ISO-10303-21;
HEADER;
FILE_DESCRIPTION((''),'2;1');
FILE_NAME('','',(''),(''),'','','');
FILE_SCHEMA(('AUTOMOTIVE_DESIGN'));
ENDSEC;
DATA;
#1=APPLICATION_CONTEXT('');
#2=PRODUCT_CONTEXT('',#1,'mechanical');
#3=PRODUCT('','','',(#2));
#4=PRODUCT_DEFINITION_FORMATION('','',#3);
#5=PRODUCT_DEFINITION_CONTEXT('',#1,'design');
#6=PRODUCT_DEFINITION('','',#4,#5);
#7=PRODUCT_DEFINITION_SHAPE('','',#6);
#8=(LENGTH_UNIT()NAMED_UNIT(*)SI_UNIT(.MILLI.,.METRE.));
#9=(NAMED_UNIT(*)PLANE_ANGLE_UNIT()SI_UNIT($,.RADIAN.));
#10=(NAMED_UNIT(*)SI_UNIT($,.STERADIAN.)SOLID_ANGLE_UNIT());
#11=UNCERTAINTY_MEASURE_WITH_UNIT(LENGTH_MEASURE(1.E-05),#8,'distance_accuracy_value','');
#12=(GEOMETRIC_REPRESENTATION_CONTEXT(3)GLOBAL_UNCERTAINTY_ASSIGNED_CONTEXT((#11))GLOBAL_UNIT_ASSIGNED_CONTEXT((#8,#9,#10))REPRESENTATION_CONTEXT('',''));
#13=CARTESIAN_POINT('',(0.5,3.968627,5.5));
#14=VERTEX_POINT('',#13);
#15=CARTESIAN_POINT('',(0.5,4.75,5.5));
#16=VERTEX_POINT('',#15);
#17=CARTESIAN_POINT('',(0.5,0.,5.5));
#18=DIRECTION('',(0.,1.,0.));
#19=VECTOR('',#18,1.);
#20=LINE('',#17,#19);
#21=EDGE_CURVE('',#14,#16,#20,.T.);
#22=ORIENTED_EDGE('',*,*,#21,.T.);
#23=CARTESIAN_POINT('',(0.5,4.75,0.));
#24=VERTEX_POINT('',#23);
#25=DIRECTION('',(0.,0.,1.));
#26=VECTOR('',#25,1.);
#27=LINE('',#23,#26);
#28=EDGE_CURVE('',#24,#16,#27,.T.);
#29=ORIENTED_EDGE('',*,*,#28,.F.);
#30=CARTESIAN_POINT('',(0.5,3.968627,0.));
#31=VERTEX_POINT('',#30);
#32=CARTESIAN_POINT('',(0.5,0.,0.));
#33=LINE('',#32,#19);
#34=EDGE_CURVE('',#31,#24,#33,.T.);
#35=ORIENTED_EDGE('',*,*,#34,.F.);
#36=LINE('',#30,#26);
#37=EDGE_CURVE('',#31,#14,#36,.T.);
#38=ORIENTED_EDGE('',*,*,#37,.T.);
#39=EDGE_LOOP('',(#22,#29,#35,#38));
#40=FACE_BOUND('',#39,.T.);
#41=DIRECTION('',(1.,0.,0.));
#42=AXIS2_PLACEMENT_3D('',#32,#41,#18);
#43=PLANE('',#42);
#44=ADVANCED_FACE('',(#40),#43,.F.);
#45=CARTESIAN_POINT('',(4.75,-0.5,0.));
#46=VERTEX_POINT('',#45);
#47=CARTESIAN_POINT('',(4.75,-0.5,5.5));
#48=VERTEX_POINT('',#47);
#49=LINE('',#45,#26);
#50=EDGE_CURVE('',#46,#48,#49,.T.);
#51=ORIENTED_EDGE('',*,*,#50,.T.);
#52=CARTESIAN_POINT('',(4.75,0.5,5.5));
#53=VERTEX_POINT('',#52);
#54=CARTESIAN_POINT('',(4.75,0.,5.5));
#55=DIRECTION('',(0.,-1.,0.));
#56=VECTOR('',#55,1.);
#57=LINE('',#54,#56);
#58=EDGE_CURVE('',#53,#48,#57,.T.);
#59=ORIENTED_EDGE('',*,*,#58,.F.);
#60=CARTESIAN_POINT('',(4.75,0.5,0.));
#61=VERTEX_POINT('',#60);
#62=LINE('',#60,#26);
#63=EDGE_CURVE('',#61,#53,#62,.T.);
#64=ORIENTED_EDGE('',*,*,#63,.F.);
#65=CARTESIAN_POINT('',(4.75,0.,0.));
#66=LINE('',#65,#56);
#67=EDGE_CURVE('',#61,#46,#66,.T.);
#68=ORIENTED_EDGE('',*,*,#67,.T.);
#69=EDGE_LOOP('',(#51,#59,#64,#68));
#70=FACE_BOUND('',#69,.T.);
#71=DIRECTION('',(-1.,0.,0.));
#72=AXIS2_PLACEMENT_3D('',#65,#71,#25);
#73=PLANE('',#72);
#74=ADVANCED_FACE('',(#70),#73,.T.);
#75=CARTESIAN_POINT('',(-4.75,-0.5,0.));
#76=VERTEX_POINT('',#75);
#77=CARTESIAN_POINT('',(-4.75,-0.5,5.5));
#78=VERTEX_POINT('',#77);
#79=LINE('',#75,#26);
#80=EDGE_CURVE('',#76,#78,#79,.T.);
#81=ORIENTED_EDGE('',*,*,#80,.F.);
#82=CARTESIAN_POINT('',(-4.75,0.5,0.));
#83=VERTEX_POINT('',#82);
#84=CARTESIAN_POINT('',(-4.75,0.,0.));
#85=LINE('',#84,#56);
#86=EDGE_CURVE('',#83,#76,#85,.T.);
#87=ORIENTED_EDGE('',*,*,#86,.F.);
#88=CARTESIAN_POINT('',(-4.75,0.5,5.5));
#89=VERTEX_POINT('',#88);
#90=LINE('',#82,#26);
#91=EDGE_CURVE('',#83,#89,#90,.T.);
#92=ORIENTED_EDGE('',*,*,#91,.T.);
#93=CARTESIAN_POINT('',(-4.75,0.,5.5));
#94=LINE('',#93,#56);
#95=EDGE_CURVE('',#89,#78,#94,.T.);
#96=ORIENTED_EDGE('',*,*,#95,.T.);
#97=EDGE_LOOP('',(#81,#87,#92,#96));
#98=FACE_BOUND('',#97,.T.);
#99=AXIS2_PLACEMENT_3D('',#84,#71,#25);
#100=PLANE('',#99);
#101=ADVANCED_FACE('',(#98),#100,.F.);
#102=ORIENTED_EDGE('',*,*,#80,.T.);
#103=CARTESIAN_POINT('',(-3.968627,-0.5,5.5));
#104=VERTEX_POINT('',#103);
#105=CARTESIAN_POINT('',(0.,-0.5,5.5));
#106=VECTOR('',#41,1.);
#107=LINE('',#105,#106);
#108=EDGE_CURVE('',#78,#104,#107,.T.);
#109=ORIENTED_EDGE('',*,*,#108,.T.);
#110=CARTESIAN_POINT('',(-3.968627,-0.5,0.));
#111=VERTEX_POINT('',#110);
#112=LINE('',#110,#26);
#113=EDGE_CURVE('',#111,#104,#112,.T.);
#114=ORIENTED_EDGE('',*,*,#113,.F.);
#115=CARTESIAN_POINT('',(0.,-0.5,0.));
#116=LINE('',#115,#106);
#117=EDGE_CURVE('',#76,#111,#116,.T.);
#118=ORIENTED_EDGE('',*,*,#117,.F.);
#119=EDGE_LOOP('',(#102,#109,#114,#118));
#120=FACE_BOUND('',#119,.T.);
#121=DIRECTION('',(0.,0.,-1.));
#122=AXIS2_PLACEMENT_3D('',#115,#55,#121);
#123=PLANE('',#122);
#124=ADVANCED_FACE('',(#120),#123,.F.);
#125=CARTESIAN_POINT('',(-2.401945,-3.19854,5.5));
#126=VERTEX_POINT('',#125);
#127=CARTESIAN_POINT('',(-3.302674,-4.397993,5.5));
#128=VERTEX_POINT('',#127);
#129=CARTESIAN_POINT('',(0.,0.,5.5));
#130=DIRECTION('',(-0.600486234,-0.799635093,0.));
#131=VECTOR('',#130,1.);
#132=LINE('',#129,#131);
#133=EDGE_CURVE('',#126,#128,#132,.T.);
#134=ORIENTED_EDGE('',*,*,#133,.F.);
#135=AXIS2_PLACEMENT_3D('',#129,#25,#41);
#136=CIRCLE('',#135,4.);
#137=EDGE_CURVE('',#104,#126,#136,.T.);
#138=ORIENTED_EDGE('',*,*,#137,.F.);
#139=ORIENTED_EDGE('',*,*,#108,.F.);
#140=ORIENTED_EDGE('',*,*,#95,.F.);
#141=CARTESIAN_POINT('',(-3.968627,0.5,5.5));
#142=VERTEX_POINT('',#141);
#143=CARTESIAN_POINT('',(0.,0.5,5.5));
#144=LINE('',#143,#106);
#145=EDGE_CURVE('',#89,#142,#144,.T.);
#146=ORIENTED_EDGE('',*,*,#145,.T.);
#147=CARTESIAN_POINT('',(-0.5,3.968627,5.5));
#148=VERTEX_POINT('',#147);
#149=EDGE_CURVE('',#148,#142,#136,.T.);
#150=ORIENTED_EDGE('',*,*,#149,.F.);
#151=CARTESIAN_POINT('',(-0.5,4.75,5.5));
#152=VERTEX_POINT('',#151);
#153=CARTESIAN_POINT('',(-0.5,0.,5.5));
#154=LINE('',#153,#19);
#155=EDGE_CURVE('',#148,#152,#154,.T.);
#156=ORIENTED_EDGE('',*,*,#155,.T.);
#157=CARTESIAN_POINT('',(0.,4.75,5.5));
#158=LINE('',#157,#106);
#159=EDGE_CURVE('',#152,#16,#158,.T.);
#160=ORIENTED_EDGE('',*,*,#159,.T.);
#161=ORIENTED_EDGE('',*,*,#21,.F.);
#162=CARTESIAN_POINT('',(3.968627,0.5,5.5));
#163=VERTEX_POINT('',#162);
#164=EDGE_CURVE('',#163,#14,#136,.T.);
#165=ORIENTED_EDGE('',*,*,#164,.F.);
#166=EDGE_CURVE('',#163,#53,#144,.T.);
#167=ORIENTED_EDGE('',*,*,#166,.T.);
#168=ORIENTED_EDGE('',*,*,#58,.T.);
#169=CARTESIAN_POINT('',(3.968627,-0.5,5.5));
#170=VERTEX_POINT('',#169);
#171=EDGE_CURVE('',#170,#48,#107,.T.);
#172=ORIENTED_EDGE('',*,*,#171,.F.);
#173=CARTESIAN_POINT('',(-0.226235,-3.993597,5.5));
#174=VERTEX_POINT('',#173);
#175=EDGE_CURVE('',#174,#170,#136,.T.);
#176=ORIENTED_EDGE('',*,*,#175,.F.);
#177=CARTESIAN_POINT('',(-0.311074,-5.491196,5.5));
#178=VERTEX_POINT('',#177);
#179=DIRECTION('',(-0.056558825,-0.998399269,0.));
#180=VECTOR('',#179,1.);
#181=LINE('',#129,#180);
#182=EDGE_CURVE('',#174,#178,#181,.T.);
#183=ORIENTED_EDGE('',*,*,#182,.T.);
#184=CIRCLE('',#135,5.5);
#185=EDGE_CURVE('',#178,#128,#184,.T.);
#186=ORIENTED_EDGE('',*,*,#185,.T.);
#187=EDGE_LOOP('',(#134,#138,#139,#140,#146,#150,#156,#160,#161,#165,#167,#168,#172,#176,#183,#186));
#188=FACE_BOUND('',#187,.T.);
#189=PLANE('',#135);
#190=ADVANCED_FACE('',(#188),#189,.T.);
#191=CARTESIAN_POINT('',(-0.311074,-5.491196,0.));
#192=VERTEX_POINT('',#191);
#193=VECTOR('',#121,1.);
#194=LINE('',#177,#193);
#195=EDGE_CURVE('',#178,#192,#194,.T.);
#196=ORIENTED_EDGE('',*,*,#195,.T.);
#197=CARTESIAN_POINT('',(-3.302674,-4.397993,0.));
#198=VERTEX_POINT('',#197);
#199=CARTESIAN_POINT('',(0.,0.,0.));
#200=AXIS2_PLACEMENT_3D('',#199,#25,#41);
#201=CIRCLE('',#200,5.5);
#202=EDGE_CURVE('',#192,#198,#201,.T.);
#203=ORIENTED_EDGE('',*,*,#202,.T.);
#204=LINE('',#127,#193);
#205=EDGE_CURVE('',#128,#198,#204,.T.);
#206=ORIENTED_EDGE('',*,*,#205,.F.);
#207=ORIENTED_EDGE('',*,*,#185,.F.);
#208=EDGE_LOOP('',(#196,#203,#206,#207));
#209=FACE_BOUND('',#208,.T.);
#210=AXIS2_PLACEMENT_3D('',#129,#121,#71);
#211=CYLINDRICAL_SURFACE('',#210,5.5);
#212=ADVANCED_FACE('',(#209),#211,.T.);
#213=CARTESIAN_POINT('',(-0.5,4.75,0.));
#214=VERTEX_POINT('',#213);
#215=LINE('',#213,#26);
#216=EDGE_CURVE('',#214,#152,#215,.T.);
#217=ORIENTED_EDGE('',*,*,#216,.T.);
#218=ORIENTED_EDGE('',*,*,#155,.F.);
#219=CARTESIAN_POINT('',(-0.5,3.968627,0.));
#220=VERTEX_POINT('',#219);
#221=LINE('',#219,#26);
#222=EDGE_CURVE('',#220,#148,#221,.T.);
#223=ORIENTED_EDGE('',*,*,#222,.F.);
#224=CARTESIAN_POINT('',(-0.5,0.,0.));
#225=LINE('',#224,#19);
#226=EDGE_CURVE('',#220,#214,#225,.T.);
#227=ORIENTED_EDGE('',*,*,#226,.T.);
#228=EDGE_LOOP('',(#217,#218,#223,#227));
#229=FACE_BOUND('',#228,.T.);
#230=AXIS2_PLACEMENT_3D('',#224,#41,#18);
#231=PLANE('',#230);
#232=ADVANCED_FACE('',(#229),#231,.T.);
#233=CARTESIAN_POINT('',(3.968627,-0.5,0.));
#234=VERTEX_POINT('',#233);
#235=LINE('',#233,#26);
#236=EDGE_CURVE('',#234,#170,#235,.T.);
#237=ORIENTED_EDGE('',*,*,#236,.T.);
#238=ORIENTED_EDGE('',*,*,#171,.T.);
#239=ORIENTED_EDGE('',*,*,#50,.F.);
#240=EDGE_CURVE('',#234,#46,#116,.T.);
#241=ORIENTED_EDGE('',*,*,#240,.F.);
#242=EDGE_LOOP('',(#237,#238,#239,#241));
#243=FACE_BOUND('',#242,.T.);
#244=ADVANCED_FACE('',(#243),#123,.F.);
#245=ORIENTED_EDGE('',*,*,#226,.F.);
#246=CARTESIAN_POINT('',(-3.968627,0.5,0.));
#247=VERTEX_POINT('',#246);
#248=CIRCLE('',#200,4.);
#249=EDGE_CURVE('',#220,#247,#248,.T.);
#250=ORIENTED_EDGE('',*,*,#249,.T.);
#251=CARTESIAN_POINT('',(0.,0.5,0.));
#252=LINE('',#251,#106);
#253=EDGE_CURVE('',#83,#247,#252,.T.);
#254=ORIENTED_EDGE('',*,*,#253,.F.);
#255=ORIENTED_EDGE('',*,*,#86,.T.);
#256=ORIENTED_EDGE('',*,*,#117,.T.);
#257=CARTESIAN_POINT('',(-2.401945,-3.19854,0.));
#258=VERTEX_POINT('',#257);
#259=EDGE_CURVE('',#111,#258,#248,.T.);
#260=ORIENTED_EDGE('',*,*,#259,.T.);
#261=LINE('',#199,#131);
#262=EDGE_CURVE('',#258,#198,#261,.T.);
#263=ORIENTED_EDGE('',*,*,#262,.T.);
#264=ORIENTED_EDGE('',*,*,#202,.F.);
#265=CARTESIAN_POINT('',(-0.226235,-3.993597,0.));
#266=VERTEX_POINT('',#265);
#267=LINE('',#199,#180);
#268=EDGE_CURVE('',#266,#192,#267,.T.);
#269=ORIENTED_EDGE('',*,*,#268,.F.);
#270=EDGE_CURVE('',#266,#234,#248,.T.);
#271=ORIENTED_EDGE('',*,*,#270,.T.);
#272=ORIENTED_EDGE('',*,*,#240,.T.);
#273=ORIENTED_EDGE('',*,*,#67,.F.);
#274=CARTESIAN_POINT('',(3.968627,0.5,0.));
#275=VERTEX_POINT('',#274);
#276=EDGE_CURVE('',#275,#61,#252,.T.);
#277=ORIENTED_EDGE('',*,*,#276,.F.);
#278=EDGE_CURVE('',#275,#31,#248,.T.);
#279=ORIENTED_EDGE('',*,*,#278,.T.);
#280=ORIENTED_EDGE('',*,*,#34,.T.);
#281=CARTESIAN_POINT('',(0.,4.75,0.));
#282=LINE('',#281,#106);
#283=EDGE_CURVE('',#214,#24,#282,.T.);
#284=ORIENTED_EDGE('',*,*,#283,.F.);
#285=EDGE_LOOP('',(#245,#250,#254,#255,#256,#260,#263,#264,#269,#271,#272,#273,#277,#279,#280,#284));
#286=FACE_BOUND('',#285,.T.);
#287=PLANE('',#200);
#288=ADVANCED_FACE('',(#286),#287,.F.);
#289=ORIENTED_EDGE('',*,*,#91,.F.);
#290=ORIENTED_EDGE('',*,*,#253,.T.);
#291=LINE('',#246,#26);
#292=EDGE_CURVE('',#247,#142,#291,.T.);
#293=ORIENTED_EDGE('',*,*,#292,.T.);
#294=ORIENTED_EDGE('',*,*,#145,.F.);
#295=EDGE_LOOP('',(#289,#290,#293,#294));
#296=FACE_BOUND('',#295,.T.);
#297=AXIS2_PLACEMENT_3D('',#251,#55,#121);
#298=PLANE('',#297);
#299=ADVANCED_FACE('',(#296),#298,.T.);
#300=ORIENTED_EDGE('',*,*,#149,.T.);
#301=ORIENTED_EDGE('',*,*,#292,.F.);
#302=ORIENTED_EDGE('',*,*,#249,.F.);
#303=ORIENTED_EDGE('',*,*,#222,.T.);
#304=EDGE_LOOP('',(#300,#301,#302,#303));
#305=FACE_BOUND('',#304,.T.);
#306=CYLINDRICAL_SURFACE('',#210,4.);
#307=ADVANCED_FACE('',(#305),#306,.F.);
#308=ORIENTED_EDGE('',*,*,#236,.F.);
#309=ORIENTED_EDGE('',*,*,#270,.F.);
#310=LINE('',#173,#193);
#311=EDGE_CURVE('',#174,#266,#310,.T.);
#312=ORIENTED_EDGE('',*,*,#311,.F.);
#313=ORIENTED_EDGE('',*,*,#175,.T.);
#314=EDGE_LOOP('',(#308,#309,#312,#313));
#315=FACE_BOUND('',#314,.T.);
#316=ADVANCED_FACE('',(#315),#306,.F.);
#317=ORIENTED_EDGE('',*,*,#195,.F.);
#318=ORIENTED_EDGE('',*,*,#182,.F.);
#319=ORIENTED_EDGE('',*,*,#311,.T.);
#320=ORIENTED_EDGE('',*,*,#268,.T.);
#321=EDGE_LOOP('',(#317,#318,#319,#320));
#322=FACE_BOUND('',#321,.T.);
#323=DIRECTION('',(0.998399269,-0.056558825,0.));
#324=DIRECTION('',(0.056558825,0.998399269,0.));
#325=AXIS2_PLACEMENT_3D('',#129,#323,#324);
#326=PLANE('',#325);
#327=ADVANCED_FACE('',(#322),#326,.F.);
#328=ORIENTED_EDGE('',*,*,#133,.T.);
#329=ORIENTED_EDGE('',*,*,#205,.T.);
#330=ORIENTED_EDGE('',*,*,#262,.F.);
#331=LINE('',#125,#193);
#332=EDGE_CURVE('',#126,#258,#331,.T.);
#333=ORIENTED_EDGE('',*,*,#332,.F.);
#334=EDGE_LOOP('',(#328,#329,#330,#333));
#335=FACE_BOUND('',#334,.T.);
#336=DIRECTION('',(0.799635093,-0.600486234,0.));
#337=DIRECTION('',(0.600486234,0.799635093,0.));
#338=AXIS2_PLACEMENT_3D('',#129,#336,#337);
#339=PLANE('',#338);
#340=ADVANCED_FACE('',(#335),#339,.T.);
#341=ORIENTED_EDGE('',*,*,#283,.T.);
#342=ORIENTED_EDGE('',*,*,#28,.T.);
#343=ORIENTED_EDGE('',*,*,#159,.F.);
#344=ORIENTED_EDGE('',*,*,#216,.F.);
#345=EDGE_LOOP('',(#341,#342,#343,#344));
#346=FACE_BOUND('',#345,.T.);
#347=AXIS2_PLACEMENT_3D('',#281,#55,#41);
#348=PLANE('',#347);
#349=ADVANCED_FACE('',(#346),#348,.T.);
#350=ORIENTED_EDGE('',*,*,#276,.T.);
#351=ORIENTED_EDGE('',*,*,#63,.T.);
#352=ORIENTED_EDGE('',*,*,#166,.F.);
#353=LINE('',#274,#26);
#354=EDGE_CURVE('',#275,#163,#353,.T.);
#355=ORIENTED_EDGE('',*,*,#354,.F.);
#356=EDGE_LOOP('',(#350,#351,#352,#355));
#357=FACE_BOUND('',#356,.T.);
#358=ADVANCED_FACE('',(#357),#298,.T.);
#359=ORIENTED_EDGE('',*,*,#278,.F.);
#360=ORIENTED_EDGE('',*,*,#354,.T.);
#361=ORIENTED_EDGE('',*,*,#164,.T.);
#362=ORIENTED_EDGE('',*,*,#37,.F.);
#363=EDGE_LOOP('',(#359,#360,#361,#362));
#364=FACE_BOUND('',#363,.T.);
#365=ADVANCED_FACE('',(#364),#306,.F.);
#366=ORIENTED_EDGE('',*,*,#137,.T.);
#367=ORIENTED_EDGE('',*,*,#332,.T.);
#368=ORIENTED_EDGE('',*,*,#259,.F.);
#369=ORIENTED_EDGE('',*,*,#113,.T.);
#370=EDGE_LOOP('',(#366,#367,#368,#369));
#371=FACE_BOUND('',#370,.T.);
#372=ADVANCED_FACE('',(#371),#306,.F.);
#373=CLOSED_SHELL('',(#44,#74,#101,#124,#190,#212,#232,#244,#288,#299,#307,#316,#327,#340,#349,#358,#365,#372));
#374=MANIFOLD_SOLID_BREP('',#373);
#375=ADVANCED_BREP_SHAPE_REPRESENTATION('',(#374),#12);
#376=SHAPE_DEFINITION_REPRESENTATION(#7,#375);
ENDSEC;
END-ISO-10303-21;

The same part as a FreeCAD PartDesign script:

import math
import FreeCAD as App
import Part
import Sketcher

V = App.Vector
Q = App.Units.Quantity

doc = App.newDocument("Part")
body = doc.addObject("PartDesign::Body", "Body")

# Sketch on XY plane
sketch1 = body.newObject("Sketcher::SketchObject", "Sketch")
sketch1.AttachmentSupport = (doc.getObject("XY_Plane"), [""])
sketch1.MapMode = "FlatFace"
sketch1.addGeometry(Part.LineSegment(V(-0.2, -4, 0), V(-0.3, -5.5, 0)), False)
sketch1.addGeometry(Part.ArcOfCircle(Part.Circle(V(0, 0, 0), V(0, 0, 1), 5.5), math.radians(-93), math.radians(233)), False)
sketch1.addGeometry(Part.LineSegment(V(-3.3, -4.4, 0), V(-2.4, -3.2, 0)), False)
sketch1.addGeometry(Part.ArcOfCircle(Part.Circle(V(0, 0, 0), V(0, 0, 1), 4), math.radians(-93), math.radians(233)), False)
sketch1.addConstraint(Sketcher.Constraint("Coincident", 0, 2, 1, 1))
sketch1.addConstraint(Sketcher.Constraint("Coincident", 1, 2, 2, 1))
sketch1.addConstraint(Sketcher.Constraint("Coincident", 2, 2, 3, 2))
sketch1.addConstraint(Sketcher.Constraint("Coincident", 3, 1, 0, 1))
sketch1.addConstraint(Sketcher.Constraint("Coincident", 1, 3, -1, 1))
sketch1.addConstraint(Sketcher.Constraint("Coincident", 3, 3, -1, 1))
sketch1.addConstraint(Sketcher.Constraint("Radius", 3, Q("4 mm")))
sketch1.addConstraint(Sketcher.Constraint("Radius", 1, Q("5.5 mm")))
sketch1.addConstraint(Sketcher.Constraint("DistanceX", 1, 2, 0, 2, Q("2.991601 mm")))
sketch1.addConstraint(Sketcher.Constraint("DistanceY", 0, 2, 3, 1, Q("1.497599 mm")))
sketch1.addConstraint(Sketcher.Constraint("DistanceY", 2, 2, -1, 1, Q("3.19854 mm")))
sketch1.addConstraint(Sketcher.Constraint("DistanceX", 1, 2, 2, 2, Q("0.900729 mm")))
pad1 = body.newObject("PartDesign::Pad", "Pad")
pad1.Profile = sketch1
pad1.Length = 5.5

# Sketch on XY plane
sketch2 = body.newObject("Sketcher::SketchObject", "Sketch001")
sketch2.AttachmentSupport = (doc.getObject("XY_Plane"), [""])
sketch2.MapMode = "FlatFace"
sketch2.addGeometry(Part.LineSegment(V(-0.5, 4.8, 0), V(-0.5, 4, 0)), False)
sketch2.addGeometry(Part.ArcOfCircle(Part.Circle(V(0, 0, 0), V(0, 0, 1), 4), math.radians(82.82), math.radians(97.18)), False)
sketch2.addGeometry(Part.LineSegment(V(0.5, 4, 0), V(0.5, 4.8, 0)), False)
sketch2.addGeometry(Part.LineSegment(V(0.5, 4.8, 0), V(-0.5, 4.8, 0)), False)
sketch2.addGeometry(Part.LineSegment(V(-4, 0.5, 0), V(-4.8, 0.5, 0)), False)
sketch2.addGeometry(Part.LineSegment(V(-4.8, 0.5, 0), V(-4.8, -0.5, 0)), False)
sketch2.addGeometry(Part.LineSegment(V(-4.8, -0.5, 0), V(-4, -0.5, 0)), False)
sketch2.addGeometry(Part.ArcOfCircle(Part.Circle(V(0, 0, 0), V(0, 0, 1), 4), math.radians(172.82), math.radians(187.18)), False)
sketch2.addGeometry(Part.LineSegment(V(4.8, 0.5, 0), V(4, 0.5, 0)), False)
sketch2.addGeometry(Part.ArcOfCircle(Part.Circle(V(0, 0, 0), V(0, 0, 1), 4), math.radians(-7.18), math.radians(7.18)), False)
sketch2.addGeometry(Part.LineSegment(V(4, -0.5, 0), V(4.8, -0.5, 0)), False)
sketch2.addGeometry(Part.LineSegment(V(4.8, -0.5, 0), V(4.8, 0.5, 0)), False)
sketch2.addConstraint(Sketcher.Constraint("Coincident", 0, 2, 1, 2))
sketch2.addConstraint(Sketcher.Constraint("Coincident", 1, 1, 2, 1))
sketch2.addConstraint(Sketcher.Constraint("Coincident", 2, 2, 3, 1))
sketch2.addConstraint(Sketcher.Constraint("Coincident", 3, 2, 0, 1))
sketch2.addConstraint(Sketcher.Constraint("Coincident", 4, 2, 5, 1))
sketch2.addConstraint(Sketcher.Constraint("Coincident", 5, 2, 6, 1))
sketch2.addConstraint(Sketcher.Constraint("Coincident", 6, 2, 7, 2))
sketch2.addConstraint(Sketcher.Constraint("Coincident", 7, 1, 4, 1))
sketch2.addConstraint(Sketcher.Constraint("Coincident", 8, 2, 9, 2))
sketch2.addConstraint(Sketcher.Constraint("Coincident", 9, 1, 10, 1))
sketch2.addConstraint(Sketcher.Constraint("Coincident", 10, 2, 11, 1))
sketch2.addConstraint(Sketcher.Constraint("Coincident", 11, 2, 8, 1))
sketch2.addConstraint(Sketcher.Constraint("Vertical", 0))
sketch2.addConstraint(Sketcher.Constraint("Vertical", 2))
sketch2.addConstraint(Sketcher.Constraint("Horizontal", 3))
sketch2.addConstraint(Sketcher.Constraint("Horizontal", 4))
sketch2.addConstraint(Sketcher.Constraint("Vertical", 5))
sketch2.addConstraint(Sketcher.Constraint("Horizontal", 6))
sketch2.addConstraint(Sketcher.Constraint("Horizontal", 8))
sketch2.addConstraint(Sketcher.Constraint("Horizontal", 10))
sketch2.addConstraint(Sketcher.Constraint("Vertical", 11))
sketch2.addConstraint(Sketcher.Constraint("Coincident", 1, 3, -1, 1))
sketch2.addConstraint(Sketcher.Constraint("Coincident", 7, 3, -1, 1))
sketch2.addConstraint(Sketcher.Constraint("Coincident", 9, 3, -1, 1))
sketch2.addConstraint(Sketcher.Constraint("Equal", 1, 7))
sketch2.addConstraint(Sketcher.Constraint("Equal", 7, 9))
sketch2.addConstraint(Sketcher.Constraint("Symmetric", 4, 2, 10, 2, -1, 1))
sketch2.addConstraint(Sketcher.Constraint("Horizontal", 0, 2, 1, 1))
sketch2.addConstraint(Sketcher.Constraint("Horizontal", 7, 1, 8, 2))
sketch2.addConstraint(Sketcher.Constraint("Horizontal", 6, 2, 9, 1))
sketch2.addConstraint(Sketcher.Constraint("Equal", 10, 0))
sketch2.addConstraint(Sketcher.Constraint("Equal", 3, 5))
sketch2.addConstraint(Sketcher.Constraint("Radius", 1, Q("4 mm")))
sketch2.addConstraint(Sketcher.Constraint("DistanceX", 3, 2, 3, 1, Q("1 mm")))
sketch2.addConstraint(Sketcher.Constraint("DistanceY", -1, 1, 2, 2, Q("4.75 mm")))
pocket1 = body.newObject("PartDesign::Pocket", "Pocket")
pocket1.Profile = sketch2
pocket1.Length = 5.5
pocket1.Reversed = True

doc.recompute()
